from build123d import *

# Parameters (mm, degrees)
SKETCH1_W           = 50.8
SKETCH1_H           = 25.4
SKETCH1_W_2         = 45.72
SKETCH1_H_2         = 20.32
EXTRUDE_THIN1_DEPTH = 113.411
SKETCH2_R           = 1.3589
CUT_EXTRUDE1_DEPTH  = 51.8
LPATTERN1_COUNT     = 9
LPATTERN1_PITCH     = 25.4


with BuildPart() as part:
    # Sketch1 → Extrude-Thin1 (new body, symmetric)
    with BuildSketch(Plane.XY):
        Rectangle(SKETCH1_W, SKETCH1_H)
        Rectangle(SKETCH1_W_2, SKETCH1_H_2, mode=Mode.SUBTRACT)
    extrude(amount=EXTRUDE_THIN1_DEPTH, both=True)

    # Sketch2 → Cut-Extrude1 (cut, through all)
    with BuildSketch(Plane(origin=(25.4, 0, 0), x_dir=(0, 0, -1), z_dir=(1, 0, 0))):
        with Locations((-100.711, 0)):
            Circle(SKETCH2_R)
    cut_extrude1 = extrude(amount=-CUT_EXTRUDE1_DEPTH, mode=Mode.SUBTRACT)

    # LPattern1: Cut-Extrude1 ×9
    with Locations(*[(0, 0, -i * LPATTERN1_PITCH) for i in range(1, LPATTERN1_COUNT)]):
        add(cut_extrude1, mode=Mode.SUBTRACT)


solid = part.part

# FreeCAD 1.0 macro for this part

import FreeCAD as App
import Part
import Sketcher
Q = App.Units.Quantity

doc = App.newDocument("Part")
body = doc.addObject("PartDesign::Body", "Body")

# Sketch on XY plane
sketch1 = doc.addObject("Sketcher::SketchObject", "Sketch")
body.addObject(sketch1)
sketch1.AttachmentSupport = (doc.XY_Plane, [""])
sketch1.MapMode = "FlatFace"
sketch1.addGeometry([
    Part.LineSegment(App.Vector(-25, 13, 0), App.Vector(-25, -13, 0)),  # 0
    Part.LineSegment(App.Vector(-25, -13, 0), App.Vector(25, -13, 0)),  # 1
    Part.LineSegment(App.Vector(25, -13, 0), App.Vector(25, 13, 0)),  # 2
    Part.LineSegment(App.Vector(25, 13, 0), App.Vector(-25, 13, 0)),  # 3
    Part.LineSegment(App.Vector(23, -10, 0), App.Vector(-23, -10, 0)),  # 4
    Part.LineSegment(App.Vector(-23, -10, 0), App.Vector(-23, 10, 0)),  # 5
    Part.LineSegment(App.Vector(-23, 10, 0), App.Vector(23, 10, 0)),  # 6
    Part.LineSegment(App.Vector(23, 10, 0), App.Vector(23, -10, 0)),  # 7
], False)
sketch1.addConstraint([
    Sketcher.Constraint("Coincident", 0, 2, 1, 1),
    Sketcher.Constraint("Coincident", 1, 2, 2, 1),
    Sketcher.Constraint("Coincident", 2, 2, 3, 1),
    Sketcher.Constraint("Coincident", 3, 2, 0, 1),
    Sketcher.Constraint("Coincident", 4, 2, 5, 1),
    Sketcher.Constraint("Coincident", 5, 2, 6, 1),
    Sketcher.Constraint("Coincident", 6, 2, 7, 1),
    Sketcher.Constraint("Coincident", 7, 2, 4, 1),
    Sketcher.Constraint("Vertical", 0),
    Sketcher.Constraint("Horizontal", 1),
    Sketcher.Constraint("Vertical", 2),
    Sketcher.Constraint("Horizontal", 3),
    Sketcher.Constraint("Horizontal", 4),
    Sketcher.Constraint("Vertical", 5),
    Sketcher.Constraint("Horizontal", 6),
    Sketcher.Constraint("Vertical", 7),
    Sketcher.Constraint("Symmetric", 0, 2, 2, 2, -1, 1),
    Sketcher.Constraint("Symmetric", 4, 2, 6, 2, -1, 1),
    Sketcher.Constraint("DistanceX", 1, 1, 1, 2, Q("2 in")),
    Sketcher.Constraint("DistanceY", 0, 2, 0, 1, Q("1 in")),
    Sketcher.Constraint("DistanceX", 4, 2, 4, 1, Q("1.8 in")),
    Sketcher.Constraint("DistanceY", 5, 1, 5, 2, Q("0.8 in")),
])
pad1 = doc.addObject("PartDesign::Pad", "Pad")
body.addObject(pad1)
pad1.Profile = sketch1
pad1.Length = Q("8.93 in")
pad1.Midplane = True

# Sketch on YZ plane
sketch2 = doc.addObject("Sketcher::SketchObject", "Sketch001")
body.addObject(sketch2)
sketch2.AttachmentSupport = (doc.YZ_Plane, [""])
sketch2.MapMode = "FlatFace"
sketch2.AttachmentOffset = App.Placement(App.Vector(0, 0, 1 * 25.4), App.Rotation())
sketch2.addGeometry(Part.Circle(App.Vector(0, 100.7, 0), App.Vector(0, 0, 1), 1.4), False)
sketch2.addConstraint([
    Sketcher.Constraint("PointOnObject", 0, 3, -2),
    Sketcher.Constraint("Diameter", 0, Q("0.107 in")),
    Sketcher.Constraint("DistanceY", -1, 1, 0, 3, Q("3.965 in")),
])
pocket1 = doc.addObject("PartDesign::Pocket", "Pocket")
body.addObject(pocket1)
pocket1.Profile = sketch2
pocket1.Type = "ThroughAll"
doc.recompute()

linearpattern = doc.addObject("PartDesign::LinearPattern", "LinearPattern")
body.addObject(linearpattern)
linearpattern.Originals = [pocket1]
linearpattern.Direction = (doc.Z_Axis, [""])
linearpattern.Mode = "offset"
linearpattern.Offset = Q("1 in")
linearpattern.Occurrences = 9
linearpattern.Reversed = True
body.Tip = linearpattern

doc.recompute()
